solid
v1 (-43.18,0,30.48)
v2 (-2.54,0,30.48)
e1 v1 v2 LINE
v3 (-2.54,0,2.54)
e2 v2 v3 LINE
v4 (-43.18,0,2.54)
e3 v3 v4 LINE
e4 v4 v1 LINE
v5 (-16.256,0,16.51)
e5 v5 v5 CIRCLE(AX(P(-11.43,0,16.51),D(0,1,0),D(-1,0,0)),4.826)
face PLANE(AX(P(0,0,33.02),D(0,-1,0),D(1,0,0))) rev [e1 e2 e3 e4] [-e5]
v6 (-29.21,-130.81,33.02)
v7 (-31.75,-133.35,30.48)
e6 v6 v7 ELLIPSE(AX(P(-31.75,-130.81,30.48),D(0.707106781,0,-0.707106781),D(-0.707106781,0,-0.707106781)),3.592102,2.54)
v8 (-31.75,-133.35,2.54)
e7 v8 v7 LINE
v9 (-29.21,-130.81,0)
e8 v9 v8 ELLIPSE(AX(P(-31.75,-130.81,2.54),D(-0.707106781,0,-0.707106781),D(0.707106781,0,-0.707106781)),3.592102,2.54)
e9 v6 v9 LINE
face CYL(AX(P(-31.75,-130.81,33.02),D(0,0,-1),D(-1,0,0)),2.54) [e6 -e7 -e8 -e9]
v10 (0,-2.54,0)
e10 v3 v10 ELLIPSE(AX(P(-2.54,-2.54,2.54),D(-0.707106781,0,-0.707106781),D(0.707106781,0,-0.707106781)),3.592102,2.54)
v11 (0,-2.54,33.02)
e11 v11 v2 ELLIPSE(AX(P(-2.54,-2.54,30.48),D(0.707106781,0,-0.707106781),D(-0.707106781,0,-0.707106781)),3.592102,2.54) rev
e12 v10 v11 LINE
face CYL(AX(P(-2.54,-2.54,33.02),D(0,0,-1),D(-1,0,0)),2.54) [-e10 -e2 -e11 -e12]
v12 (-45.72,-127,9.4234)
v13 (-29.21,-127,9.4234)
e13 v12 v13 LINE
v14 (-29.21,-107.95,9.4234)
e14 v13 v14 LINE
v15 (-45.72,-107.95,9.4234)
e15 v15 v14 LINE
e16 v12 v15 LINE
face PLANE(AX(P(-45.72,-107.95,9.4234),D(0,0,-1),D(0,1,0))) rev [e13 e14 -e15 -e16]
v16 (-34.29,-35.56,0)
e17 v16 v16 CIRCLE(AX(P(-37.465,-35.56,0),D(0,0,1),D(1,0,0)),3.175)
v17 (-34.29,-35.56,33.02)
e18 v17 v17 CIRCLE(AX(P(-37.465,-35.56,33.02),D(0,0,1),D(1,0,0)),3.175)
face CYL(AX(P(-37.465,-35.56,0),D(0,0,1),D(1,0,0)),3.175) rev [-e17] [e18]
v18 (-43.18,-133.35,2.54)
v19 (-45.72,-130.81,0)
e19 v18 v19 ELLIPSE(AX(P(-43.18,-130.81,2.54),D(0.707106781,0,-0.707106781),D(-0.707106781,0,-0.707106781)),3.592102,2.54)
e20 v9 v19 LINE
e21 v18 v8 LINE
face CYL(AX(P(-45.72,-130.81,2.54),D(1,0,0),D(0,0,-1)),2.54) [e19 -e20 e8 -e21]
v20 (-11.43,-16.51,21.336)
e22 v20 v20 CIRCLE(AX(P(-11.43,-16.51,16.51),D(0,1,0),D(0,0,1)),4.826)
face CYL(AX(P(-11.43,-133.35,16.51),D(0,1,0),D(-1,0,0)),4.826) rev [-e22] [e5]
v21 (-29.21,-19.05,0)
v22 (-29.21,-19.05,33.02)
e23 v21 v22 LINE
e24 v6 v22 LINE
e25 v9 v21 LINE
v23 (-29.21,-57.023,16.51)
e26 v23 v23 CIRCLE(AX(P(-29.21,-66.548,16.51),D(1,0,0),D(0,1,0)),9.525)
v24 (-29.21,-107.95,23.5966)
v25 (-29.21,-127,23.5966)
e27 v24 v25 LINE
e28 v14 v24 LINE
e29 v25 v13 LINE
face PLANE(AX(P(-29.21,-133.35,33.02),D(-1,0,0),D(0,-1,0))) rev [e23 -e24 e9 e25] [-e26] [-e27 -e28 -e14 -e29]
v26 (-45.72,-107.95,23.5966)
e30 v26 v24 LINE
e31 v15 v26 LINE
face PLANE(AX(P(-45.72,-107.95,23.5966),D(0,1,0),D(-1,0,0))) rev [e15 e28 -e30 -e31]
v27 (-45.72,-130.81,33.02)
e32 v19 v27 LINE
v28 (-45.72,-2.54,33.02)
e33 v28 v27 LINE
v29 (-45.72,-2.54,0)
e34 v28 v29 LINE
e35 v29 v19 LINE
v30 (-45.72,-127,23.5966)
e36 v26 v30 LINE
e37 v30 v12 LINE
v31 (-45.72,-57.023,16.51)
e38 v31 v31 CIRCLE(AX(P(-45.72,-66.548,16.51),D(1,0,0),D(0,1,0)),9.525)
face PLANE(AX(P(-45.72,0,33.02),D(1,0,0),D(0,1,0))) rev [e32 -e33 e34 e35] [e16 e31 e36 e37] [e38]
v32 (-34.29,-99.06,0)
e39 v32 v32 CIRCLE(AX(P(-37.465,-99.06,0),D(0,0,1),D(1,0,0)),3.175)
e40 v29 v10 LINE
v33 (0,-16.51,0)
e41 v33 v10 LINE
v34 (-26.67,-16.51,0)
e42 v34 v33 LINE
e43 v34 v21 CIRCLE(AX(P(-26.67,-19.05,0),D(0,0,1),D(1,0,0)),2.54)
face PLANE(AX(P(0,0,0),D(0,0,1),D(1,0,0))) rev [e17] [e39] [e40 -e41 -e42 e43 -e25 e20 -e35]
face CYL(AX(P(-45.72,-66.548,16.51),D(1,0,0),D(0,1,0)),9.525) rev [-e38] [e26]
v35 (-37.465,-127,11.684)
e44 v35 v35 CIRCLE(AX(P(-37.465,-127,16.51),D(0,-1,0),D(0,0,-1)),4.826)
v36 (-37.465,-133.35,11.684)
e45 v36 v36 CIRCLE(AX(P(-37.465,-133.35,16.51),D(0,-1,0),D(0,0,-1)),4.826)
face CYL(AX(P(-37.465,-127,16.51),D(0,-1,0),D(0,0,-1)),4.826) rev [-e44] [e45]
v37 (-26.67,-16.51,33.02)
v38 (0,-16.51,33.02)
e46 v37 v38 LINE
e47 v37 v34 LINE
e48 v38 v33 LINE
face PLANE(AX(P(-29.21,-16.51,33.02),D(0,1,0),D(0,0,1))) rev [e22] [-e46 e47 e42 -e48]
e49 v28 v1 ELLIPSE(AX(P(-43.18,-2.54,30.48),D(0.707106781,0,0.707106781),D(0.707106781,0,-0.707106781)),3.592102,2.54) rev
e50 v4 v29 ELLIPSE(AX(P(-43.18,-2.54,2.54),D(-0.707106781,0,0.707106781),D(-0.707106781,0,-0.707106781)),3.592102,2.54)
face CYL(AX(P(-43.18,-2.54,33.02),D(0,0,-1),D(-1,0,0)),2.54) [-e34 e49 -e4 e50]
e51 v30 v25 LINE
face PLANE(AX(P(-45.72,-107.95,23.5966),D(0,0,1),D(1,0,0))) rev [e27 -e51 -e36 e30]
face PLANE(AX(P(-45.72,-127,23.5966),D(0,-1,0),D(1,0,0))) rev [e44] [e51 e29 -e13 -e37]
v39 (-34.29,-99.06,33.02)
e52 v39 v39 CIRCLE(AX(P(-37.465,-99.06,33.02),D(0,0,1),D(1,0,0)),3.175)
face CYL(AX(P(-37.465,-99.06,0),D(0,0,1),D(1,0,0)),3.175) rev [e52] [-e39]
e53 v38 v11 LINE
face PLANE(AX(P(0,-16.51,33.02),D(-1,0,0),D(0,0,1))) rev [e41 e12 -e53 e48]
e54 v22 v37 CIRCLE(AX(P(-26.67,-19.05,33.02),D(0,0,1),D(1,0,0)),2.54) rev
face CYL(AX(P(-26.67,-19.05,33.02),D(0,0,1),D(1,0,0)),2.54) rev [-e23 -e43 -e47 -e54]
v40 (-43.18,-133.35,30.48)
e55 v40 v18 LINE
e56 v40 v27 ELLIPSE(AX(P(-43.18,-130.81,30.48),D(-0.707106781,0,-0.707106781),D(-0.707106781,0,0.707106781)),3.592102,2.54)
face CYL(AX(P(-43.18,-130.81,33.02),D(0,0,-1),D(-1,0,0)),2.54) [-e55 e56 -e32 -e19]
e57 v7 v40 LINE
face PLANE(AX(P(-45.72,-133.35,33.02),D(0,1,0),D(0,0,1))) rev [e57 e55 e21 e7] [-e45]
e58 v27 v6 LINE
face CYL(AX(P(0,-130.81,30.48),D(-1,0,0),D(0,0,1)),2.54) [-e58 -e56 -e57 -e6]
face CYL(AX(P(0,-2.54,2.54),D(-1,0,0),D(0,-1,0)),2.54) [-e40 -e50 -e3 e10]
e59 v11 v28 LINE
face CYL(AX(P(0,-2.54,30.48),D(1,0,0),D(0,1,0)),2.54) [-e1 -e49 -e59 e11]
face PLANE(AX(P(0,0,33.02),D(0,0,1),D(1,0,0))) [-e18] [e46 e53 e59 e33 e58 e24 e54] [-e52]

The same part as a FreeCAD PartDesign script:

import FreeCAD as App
import Part
import Sketcher
from FreeCAD import Vector
Q = App.Units.Quantity


def edges_at(feature, points):
    """Names of the edges that pass closest to the given points."""
    edges = feature.Shape.Edges
    near = lambda p: min(range(len(edges)), key=lambda i: edges[i].distToShape(Part.Vertex(*p))[0])
    return sorted({f"Edge{near(p) + 1}" for p in points})


def add_polygon(sketch, points):
    """Adds a closed chain of lines whose ends are joined by coincident constraints."""
    first, n = sketch.GeometryCount, len(points)
    for a, b in zip(points, points[1:] + points[:1]):
        sketch.addGeometry(Part.LineSegment(App.Vector(*a, 0), App.Vector(*b, 0)), False)
    for i in range(n):
        sketch.addConstraint(Sketcher.Constraint("Coincident", first + i, 2, first + (i + 1) % n, 1))

doc = App.newDocument("Part")
body = doc.addObject("PartDesign::Body", "Body")

# Sketch on XY plane
sketch1 = body.newObject("Sketcher::SketchObject", "Sketch")
sketch1.AttachmentSupport = (doc.getObject("XY_Plane"), [""])
sketch1.MapMode = "FlatFace"
add_polygon(sketch1, [(0, 0), (-46, 0), (-46, -133), (-29, -133), (-29, -17), (0, -17)])  # lines 0-5
sketch1.addConstraint([
    Sketcher.Constraint("Horizontal", 0),
    Sketcher.Constraint("Vertical", 1),
    Sketcher.Constraint("Horizontal", 2),
    Sketcher.Constraint("Vertical", 3),
    Sketcher.Constraint("Horizontal", 4),
    Sketcher.Constraint("Vertical", 5),
    Sketcher.Constraint("Coincident", 5, 2, -1, 1),
    Sketcher.Constraint("Equal", 2, 5),
    Sketcher.Constraint("DistanceX", 0, 2, 0, 1, Q("1.8 in")),
    Sketcher.Constraint("DistanceY", 3, 1, 3, 2, Q("4.6 in")),
    Sketcher.Constraint("DistanceX", 2, 1, 2, 2, Q("0.65 in")),
])
pad1 = body.newObject("PartDesign::Pad", "Pad")
pad1.Profile = sketch1
pad1.Length = Q("1.3 in")
doc.recompute()

fillet = body.newObject("PartDesign::Fillet", "Fillet")
fillet.Base = (pad1, edges_at(pad1, [
    (-45.72, 0, 16.51),
    (0, 0, 16.51),
    (-22.86, 0, 33.02),
    (-22.86, 0, 0),
]))
fillet.Radius = Q("0.1 in")

# Sketch on YZ plane
sketch2 = body.newObject("Sketcher::SketchObject", "Sketch001")
sketch2.AttachmentSupport = (doc.getObject("YZ_Plane"), [""])
sketch2.MapMode = "FlatFace"
sketch2.AttachmentOffset = App.Placement(Vector(0, 0, -1.15 * 25.4), App.Rotation())
sketch2.addGeometry(Part.Circle(Vector(-67, 17, 0), Vector(0, 0, 1), 10), False)
sketch2.addConstraint([
    Sketcher.Constraint("Diameter", 0, Q("0.75 in")),
    Sketcher.Constraint("DistanceX", 0, 3, -1, 1, Q("2.62 in")),
    Sketcher.Constraint("DistanceY", -1, 1, 0, 3, Q("0.65 in")),
])
pocket1 = body.newObject("PartDesign::Pocket", "Pocket")
pocket1.Profile = sketch2
pocket1.Type = "ThroughAll"

# Sketch on XY plane
sketch3 = body.newObject("Sketcher::SketchObject", "Sketch002")
sketch3.AttachmentSupport = (doc.getObject("XY_Plane"), [""])
sketch3.MapMode = "FlatFace"
sketch3.AttachmentOffset = App.Placement(Vector(0, 0, 1.3 * 25.4), App.Rotation())
sketch3.addGeometry([
    Part.Circle(Vector(-37.5, -35.6, 0), Vector(0, 0, 1), 3.2),
    Part.Circle(Vector(-37.5, -99.1, 0), Vector(0, 0, 1), 3.2),
], False)
sketch3.addConstraint([
    Sketcher.Constraint("Equal", 0, 1),
    Sketcher.Constraint("Vertical", 0, 3, 1, 3),
    Sketcher.Constraint("Diameter", 0, Q("0.25 in")),
    Sketcher.Constraint("DistanceY", 0, 3, -1, 1, Q("1.4 in")),
    Sketcher.Constraint("DistanceY", 1, 3, -1, 1, Q("3.9 in")),
    Sketcher.Constraint("DistanceX", 0, 3, -1, 1, Q("1.475 in")),
])
pocket2 = body.newObject("PartDesign::Pocket", "Pocket001")
pocket2.Profile = sketch3
pocket2.Type = "ThroughAll"

# Sketch on YZ plane
sketch4 = body.newObject("Sketcher::SketchObject", "Sketch003")
sketch4.AttachmentSupport = (doc.getObject("YZ_Plane"), [""])
sketch4.MapMode = "FlatFace"
sketch4.AttachmentOffset = App.Placement(Vector(0, 0, -1.15 * 25.4), App.Rotation())
add_polygon(sketch4, [(-108, 24), (-127, 24), (-127, 9), (-108, 9)])  # lines 0-3
sketch4.addConstraint([
    Sketcher.Constraint("Horizontal", 0),
    Sketcher.Constraint("Vertical", 1),
    Sketcher.Constraint("Horizontal", 2),
    Sketcher.Constraint("Vertical", 3),
    Sketcher.Constraint("DistanceX", 0, 2, -1, 1, Q("5 in")),
    Sketcher.Constraint("DistanceX", 0, 2, 0, 1, Q("0.75 in")),
    Sketcher.Constraint("DistanceY", 1, 2, 1, 1, Q("0.558 in")),
    Sketcher.Constraint("DistanceY", -1, 1, 0, 2, Q("0.929 in")),
])
pocket3 = body.newObject("PartDesign::Pocket", "Pocket002")
pocket3.Profile = sketch4
pocket3.Type = "ThroughAll"

# Sketch on XZ plane
sketch5 = body.newObject("Sketcher::SketchObject", "Sketch004")
sketch5.AttachmentSupport = (doc.getObject("XZ_Plane"), [""])
sketch5.MapMode = "FlatFace"
sketch5.AttachmentOffset = App.Placement(Vector(0, 0, 5.25 * 25.4), App.Rotation())
sketch5.addGeometry(Part.Circle(Vector(-37.5, 16.5, 0), Vector(0, 0, 1), 4.8), False)
sketch5.addConstraint([
    Sketcher.Constraint("Diameter", 0, Q("0.38 in")),
    Sketcher.Constraint("DistanceY", -1, 1, 0, 3, Q("0.65 in")),
    Sketcher.Constraint("DistanceX", 0, 3, -1, 1, Q("1.475 in")),
])
pocket4 = body.newObject("PartDesign::Pocket", "Pocket003")
pocket4.Profile = sketch5
pocket4.Length = Q("0.25 in")

# Sketch on XZ plane
sketch6 = body.newObject("Sketcher::SketchObject", "Sketch005")
sketch6.AttachmentSupport = (doc.getObject("XZ_Plane"), [""])
sketch6.MapMode = "FlatFace"
sketch6.addGeometry(Part.Circle(Vector(-11.4, 16.5, 0), Vector(0, 0, 1), 4.8), False)
sketch6.addConstraint([
    Sketcher.Constraint("Diameter", 0, Q("0.38 in")),
    Sketcher.Constraint("DistanceX", 0, 3, -1, 1, Q("0.45 in")),
    Sketcher.Constraint("DistanceY", -1, 1, 0, 3, Q("0.65 in")),
])
pocket5 = body.newObject("PartDesign::Pocket", "Pocket004")
pocket5.Profile = sketch6
pocket5.Type = "ThroughAll"
pocket5.Reversed = True
doc.recompute()

fillet2 = body.newObject("PartDesign::Fillet", "Fillet001")
fillet2.Base = (pocket5, edges_at(pocket5, [
    (-29.21, -133.35, 16.51),
    (-45.72, -133.35, 16.51),
    (-37.465, -133.35, 33.02),
    (-37.465, -133.35, 0),
]))
fillet2.Radius = Q("0.1 in")
doc.recompute()

fillet3 = body.newObject("PartDesign::Fillet", "Fillet002")
fillet3.Base = (fillet2, edges_at(fillet2, [(-29.21, -16.51, 16.51)]))
fillet3.Radius = Q("0.1 in")

doc.recompute()
